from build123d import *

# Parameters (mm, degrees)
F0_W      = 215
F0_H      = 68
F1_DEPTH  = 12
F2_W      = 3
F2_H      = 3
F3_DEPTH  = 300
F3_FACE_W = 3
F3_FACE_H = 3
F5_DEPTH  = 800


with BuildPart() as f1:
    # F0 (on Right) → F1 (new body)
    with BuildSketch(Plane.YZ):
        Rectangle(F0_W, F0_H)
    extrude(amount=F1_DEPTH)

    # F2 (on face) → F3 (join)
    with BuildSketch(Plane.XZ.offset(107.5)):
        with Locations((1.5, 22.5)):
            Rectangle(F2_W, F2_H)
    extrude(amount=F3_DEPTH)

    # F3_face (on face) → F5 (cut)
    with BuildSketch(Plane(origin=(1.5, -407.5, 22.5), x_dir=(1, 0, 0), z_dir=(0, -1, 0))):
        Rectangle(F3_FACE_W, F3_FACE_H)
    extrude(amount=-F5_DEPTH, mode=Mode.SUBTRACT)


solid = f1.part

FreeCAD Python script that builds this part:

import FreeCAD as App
import Part
import Sketcher

V = App.Vector
Q = App.Units.Quantity


def add_polygon(sketch, points):
    """Adds a closed chain of lines whose ends are joined by coincident constraints."""
    first, n = sketch.GeometryCount, len(points)
    for a, b in zip(points, points[1:] + points[:1]):
        sketch.addGeometry(Part.LineSegment(App.Vector(*a, 0), App.Vector(*b, 0)), False)
    for i in range(n):
        sketch.addConstraint(Sketcher.Constraint("Coincident", first + i, 2, first + (i + 1) % n, 1))

doc = App.newDocument("Part")
body = doc.addObject("PartDesign::Body", "Body")

# Sketch on YZ plane
sketch1 = body.newObject("Sketcher::SketchObject", "Sketch")
sketch1.AttachmentSupport = (doc.getObject("YZ_Plane"), [""])
sketch1.MapMode = "FlatFace"
add_polygon(sketch1, [(-108, 34), (-108, -34), (108, -34), (108, 34)])  # lines 0-3
sketch1.addConstraint([
    Sketcher.Constraint("Vertical", 0),
    Sketcher.Constraint("Horizontal", 1),
    Sketcher.Constraint("Vertical", 2),
    Sketcher.Constraint("Horizontal", 3),
    Sketcher.Constraint("Symmetric", 0, 2, 2, 2, -1, 1),
    Sketcher.Constraint("DistanceX", 1, 1, 1, 2, Q("215 mm")),
    Sketcher.Constraint("DistanceY", 0, 2, 0, 1, Q("68 mm")),
])
pad1 = body.newObject("PartDesign::Pad", "Pad")
pad1.Profile = sketch1
pad1.Length = 12

# Sketch on XZ plane
sketch2 = body.newObject("Sketcher::SketchObject", "Sketch001")
sketch2.AttachmentSupport = (doc.getObject("XZ_Plane"), [""])
sketch2.MapMode = "FlatFace"
sketch2.AttachmentOffset = App.Placement(V(0, 0, 107.5), App.Rotation())
add_polygon(sketch2, [(0, 24), (0, 21), (3, 21), (3, 24)])  # lines 0-3
sketch2.addConstraint([
    Sketcher.Constraint("Vertical", 0),
    Sketcher.Constraint("Horizontal", 1),
    Sketcher.Constraint("Vertical", 2),
    Sketcher.Constraint("Horizontal", 3),
    Sketcher.Constraint("PointOnObject", 0, 2, -2),
    Sketcher.Constraint("Equal", 3, 0),
    Sketcher.Constraint("DistanceX", 1, 1, 1, 2, Q("3 mm")),
    Sketcher.Constraint("DistanceY", -1, 1, 0, 2, Q("21 mm")),
])
pad2 = body.newObject("PartDesign::Pad", "Pad001")
pad2.Profile = sketch2
pad2.Length = 300

# Sketch on XZ plane
sketch3 = body.newObject("Sketcher::SketchObject", "Sketch002")
sketch3.AttachmentSupport = (doc.getObject("XZ_Plane"), [""])
sketch3.MapMode = "FlatFace"
sketch3.AttachmentOffset = App.Placement(V(0, 0, 407.5), App.Rotation())
add_polygon(sketch3, [(0, 24), (0, 21), (3, 21), (3, 24)])  # lines 0-3
sketch3.addConstraint([
    Sketcher.Constraint("Vertical", 0),
    Sketcher.Constraint("Horizontal", 1),
    Sketcher.Constraint("Vertical", 2),
    Sketcher.Constraint("Horizontal", 3),
    Sketcher.Constraint("PointOnObject", 0, 2, -2),
    Sketcher.Constraint("Equal", 3, 0),
    Sketcher.Constraint("DistanceX", 1, 1, 1, 2, Q("3 mm")),
    Sketcher.Constraint("DistanceY", -1, 1, 0, 2, Q("21 mm")),
])
pocket1 = body.newObject("PartDesign::Pocket", "Pocket")
pocket1.Profile = sketch3
pocket1.Length = 800

doc.recompute()
